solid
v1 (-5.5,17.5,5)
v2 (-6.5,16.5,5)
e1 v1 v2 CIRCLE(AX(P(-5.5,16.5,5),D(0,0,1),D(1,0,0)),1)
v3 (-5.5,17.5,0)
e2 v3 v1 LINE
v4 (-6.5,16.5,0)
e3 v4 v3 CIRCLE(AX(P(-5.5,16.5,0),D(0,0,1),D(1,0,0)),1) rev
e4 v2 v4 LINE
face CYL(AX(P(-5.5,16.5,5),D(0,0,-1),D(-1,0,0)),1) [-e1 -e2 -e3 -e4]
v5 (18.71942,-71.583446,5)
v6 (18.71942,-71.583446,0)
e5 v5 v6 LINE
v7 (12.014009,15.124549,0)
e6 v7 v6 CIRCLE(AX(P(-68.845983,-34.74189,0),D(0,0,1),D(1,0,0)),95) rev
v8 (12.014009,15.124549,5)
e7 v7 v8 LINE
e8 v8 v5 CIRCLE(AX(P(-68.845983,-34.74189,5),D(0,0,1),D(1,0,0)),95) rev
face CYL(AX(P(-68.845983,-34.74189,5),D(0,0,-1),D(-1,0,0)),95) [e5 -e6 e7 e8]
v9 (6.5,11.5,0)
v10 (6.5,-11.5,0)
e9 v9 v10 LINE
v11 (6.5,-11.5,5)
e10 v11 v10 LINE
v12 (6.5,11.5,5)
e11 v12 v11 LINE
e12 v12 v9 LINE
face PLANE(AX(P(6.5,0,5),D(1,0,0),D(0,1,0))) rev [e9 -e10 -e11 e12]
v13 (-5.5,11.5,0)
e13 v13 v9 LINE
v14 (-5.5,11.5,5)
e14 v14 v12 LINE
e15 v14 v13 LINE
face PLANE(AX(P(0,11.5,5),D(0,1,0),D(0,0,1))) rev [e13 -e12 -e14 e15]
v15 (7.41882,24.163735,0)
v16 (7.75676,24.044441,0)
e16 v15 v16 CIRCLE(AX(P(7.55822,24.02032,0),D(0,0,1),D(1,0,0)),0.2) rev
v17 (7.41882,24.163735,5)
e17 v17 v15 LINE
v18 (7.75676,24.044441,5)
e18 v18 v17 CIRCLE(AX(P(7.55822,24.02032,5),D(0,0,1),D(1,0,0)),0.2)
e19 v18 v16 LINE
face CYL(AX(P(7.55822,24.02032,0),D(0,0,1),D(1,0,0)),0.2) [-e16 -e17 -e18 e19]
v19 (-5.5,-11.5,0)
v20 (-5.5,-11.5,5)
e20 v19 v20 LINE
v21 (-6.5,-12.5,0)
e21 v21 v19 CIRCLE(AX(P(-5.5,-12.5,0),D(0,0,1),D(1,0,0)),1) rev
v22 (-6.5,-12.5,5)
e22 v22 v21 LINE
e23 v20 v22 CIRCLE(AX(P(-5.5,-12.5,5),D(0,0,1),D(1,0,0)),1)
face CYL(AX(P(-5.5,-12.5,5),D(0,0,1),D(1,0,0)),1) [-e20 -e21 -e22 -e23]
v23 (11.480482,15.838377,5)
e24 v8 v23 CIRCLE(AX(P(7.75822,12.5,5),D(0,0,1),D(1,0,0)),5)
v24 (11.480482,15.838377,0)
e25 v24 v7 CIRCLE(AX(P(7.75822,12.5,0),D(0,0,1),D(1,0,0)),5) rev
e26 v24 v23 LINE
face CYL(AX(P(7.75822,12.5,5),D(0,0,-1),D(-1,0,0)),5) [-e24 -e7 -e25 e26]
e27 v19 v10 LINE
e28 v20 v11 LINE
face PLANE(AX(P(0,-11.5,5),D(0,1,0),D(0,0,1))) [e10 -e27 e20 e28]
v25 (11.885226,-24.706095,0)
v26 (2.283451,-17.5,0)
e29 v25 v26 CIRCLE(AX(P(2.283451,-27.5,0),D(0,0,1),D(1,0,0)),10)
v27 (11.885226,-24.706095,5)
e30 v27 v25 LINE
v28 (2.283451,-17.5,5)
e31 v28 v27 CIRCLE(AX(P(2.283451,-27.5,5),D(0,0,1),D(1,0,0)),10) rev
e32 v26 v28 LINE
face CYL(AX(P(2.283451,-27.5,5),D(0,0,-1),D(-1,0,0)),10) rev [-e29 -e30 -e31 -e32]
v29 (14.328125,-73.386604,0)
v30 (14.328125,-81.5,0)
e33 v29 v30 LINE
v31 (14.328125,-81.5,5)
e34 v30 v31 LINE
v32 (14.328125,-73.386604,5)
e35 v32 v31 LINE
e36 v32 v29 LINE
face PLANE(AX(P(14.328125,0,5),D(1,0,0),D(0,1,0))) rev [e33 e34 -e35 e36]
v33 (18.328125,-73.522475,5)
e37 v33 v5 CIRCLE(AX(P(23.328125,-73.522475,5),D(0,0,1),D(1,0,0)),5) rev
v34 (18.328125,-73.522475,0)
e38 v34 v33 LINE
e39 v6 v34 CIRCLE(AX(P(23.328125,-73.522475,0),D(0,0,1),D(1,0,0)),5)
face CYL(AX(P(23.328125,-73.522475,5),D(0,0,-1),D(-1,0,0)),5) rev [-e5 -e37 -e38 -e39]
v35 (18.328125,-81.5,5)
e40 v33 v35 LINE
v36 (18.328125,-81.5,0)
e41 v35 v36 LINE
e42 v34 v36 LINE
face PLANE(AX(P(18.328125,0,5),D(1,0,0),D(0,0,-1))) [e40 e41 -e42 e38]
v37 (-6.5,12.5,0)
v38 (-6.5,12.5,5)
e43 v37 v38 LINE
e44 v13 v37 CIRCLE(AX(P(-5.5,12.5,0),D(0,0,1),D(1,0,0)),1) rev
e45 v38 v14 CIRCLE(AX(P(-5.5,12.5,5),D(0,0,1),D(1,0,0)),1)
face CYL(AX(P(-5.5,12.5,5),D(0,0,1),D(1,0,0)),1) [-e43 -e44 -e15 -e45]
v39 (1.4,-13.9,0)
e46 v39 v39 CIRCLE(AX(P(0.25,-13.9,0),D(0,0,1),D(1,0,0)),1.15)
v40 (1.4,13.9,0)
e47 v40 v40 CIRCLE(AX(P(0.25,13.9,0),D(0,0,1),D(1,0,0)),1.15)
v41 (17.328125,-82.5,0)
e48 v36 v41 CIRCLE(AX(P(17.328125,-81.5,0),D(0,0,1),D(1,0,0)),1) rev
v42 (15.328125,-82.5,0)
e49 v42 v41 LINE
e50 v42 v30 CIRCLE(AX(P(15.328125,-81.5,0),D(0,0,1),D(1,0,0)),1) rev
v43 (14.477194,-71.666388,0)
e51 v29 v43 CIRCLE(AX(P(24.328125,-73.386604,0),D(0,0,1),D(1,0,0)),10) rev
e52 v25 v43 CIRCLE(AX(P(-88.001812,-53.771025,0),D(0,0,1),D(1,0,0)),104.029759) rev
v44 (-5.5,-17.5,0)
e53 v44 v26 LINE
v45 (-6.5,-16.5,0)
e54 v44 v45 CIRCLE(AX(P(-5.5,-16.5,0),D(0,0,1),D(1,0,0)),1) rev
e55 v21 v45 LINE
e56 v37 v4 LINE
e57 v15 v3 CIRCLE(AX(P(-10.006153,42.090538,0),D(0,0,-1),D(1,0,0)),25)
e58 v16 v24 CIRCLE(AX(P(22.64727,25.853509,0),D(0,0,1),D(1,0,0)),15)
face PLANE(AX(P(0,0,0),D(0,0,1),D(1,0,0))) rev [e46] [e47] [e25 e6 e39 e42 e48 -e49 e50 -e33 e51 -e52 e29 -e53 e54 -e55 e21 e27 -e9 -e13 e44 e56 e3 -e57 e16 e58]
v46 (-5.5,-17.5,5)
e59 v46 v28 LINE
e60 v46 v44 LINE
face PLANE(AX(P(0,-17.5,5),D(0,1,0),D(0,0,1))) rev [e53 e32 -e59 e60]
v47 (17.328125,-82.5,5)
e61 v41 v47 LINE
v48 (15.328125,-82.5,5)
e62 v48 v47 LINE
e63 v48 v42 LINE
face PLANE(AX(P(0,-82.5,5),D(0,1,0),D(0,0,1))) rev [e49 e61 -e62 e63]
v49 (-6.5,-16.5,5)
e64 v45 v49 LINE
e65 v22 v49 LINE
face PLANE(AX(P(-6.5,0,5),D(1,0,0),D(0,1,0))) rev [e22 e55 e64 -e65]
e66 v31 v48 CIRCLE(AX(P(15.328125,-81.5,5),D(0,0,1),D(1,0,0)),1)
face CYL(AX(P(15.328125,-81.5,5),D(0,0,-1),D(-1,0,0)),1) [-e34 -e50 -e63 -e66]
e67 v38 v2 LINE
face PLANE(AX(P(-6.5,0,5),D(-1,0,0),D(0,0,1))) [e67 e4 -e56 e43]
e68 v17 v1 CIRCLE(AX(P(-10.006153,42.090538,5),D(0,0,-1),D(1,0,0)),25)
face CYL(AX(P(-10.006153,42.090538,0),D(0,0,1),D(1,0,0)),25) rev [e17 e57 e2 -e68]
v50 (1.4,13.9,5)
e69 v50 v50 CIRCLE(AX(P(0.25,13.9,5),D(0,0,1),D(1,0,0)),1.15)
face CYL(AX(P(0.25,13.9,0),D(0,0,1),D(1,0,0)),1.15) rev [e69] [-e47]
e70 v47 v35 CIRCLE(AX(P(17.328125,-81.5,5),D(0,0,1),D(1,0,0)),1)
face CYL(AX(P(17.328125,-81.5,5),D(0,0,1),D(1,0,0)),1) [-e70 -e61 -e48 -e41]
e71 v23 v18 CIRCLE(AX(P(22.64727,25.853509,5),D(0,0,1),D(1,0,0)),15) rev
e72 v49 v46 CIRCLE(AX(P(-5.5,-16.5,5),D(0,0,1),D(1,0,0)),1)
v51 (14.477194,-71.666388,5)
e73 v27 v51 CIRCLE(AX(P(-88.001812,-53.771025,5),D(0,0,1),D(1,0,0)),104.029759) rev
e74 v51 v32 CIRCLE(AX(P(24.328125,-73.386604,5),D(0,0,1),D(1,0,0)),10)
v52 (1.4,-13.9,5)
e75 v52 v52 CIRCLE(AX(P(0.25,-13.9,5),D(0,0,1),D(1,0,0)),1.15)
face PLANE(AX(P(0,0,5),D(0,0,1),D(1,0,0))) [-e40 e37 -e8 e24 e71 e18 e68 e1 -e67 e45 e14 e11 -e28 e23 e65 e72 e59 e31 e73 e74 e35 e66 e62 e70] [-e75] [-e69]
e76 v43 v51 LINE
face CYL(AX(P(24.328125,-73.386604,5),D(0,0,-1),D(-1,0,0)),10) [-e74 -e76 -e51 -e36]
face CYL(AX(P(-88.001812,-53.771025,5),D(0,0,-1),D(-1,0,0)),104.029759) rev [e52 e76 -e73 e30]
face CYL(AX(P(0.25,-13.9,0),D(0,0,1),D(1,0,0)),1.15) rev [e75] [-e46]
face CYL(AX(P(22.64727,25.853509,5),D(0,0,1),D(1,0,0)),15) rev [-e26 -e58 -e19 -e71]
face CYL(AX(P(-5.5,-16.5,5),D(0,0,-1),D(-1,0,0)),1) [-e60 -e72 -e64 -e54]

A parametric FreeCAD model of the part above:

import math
import FreeCAD as App
import Part
import Sketcher

V = App.Vector


def edges_at(feature, points):
    """Names of the edges that pass closest to the given points."""
    edges = feature.Shape.Edges
    near = lambda p: min(range(len(edges)), key=lambda i: edges[i].distToShape(Part.Vertex(*p))[0])
    return sorted({f"Edge{near(p) + 1}" for p in points})

doc = App.newDocument("Part")
body = doc.addObject("PartDesign::Body", "Body")

sketch1 = doc.addObject("Sketcher::SketchObject", "Sketch")
body.addObject(sketch1)
sketch1.AttachmentSupport = (doc.XY_Plane, [""])
sketch1.MapMode = "FlatFace"
sketch1.addGeometry([
    Part.LineSegment(V(-6.5, 17.5, 0), V(-6.5, 11.5, 0)),
    Part.LineSegment(V(-6.5, 11.5, 0), V(6.5, 11.5, 0)),
    Part.LineSegment(V(6.5, 11.5, 0), V(6.5, -11.5, 0)),
    Part.LineSegment(V(6.5, -11.5, 0), V(-6.5, -11.5, 0)),
    Part.LineSegment(V(-6.5, -11.5, 0), V(-6.5, -17.5, 0)),
    Part.LineSegment(V(-6.5, -17.5, 0), V(9.5, -17.5, 0)),
    Part.ArcOfCircle(Part.Circle(V(-88, -53.8, 0), V(0, 0, 1), 104), math.radians(-10), math.radians(20)),
    Part.LineSegment(V(14.3, -72.5, 0), V(14.3, -82.5, 0)),
    Part.LineSegment(V(14.3, -82.5, 0), V(18.3, -82.5, 0)),
    Part.LineSegment(V(18.3, -82.5, 0), V(18.3, -72.5, 0)),
    Part.ArcOfCircle(Part.Circle(V(-68.8, -34.7, 0), V(0, 0, 1), 95), math.radians(-23), math.radians(33)),
    Part.LineSegment(V(10.5, 17.5, 0), V(-6.5, 17.5, 0)),
], False)
sketch1.addConstraint([
    Sketcher.Constraint("Coincident", 0, 2, 1, 1),
    Sketcher.Constraint("Coincident", 1, 2, 2, 1),
    Sketcher.Constraint("Coincident", 2, 2, 3, 1),
    Sketcher.Constraint("Coincident", 3, 2, 4, 1),
    Sketcher.Constraint("Coincident", 4, 2, 5, 1),
    Sketcher.Constraint("Coincident", 5, 2, 6, 2),
    Sketcher.Constraint("Coincident", 6, 1, 7, 1),
    Sketcher.Constraint("Coincident", 7, 2, 8, 1),
    Sketcher.Constraint("Coincident", 8, 2, 9, 1),
    Sketcher.Constraint("Coincident", 9, 2, 10, 1),
    Sketcher.Constraint("Coincident", 10, 2, 11, 1),
    Sketcher.Constraint("Coincident", 11, 2, 0, 1),
    Sketcher.Constraint("Vertical", 0),
    Sketcher.Constraint("Horizontal", 1),
    Sketcher.Constraint("Vertical", 2),
    Sketcher.Constraint("Horizontal", 3),
    Sketcher.Constraint("Vertical", 4),
    Sketcher.Constraint("Horizontal", 5),
    Sketcher.Constraint("Vertical", 7),
    Sketcher.Constraint("Horizontal", 8),
    Sketcher.Constraint("Vertical", 9),
    Sketcher.Constraint("Horizontal", 11),
    Sketcher.Constraint("Symmetric", 0, 2, 2, 2, -1, 1),
    Sketcher.Constraint("Symmetric", 4, 2, 11, 2, -1),
    Sketcher.Constraint("Horizontal", 6, 1, 9, 2),
    Sketcher.Constraint("Radius", 10, 95.0),
    Sketcher.Constraint("DistanceX", 1, 1, 1, 2, 13.0),
    Sketcher.Constraint("DistanceX", 5, 1, 5, 2, 16.0),
    Sketcher.Constraint("DistanceX", 8, 1, 8, 2, 4.0),
    Sketcher.Constraint("DistanceX", 11, 2, 11, 1, 17.0),
    Sketcher.Constraint("DistanceY", 0, 2, 0, 1, 6.0),
    Sketcher.Constraint("DistanceY", 2, 2, 2, 1, 23.0),
    Sketcher.Constraint("DistanceY", 7, 2, 7, 1, 10.0),
    Sketcher.Constraint("DistanceY", 6, 1, 5, 2, 55.0),
    Sketcher.Constraint("Radius", 6, 104.029759),
    Sketcher.Constraint("DistanceY", 10, 3, -1, 1, 34.74189),
])
pad1 = doc.addObject("PartDesign::Pad", "Pad")
body.addObject(pad1)
pad1.Profile = sketch1
pad1.Length = 5

sketch2 = doc.addObject("Sketcher::SketchObject", "Sketch001")
body.addObject(sketch2)
sketch2.AttachmentSupport = (doc.XY_Plane, [""])
sketch2.MapMode = "FlatFace"
sketch2.AttachmentOffset = App.Placement(V(0, 0, 5), App.Rotation())
sketch2.addGeometry([
    Part.Circle(V(0.2, 13.9, 0), V(0, 0, 1), 1.1),
    Part.Circle(V(0.2, -13.9, 0), V(0, 0, 1), 1.1),
], False)
sketch2.addConstraint([
    Sketcher.Constraint("Equal", 0, 1),
    Sketcher.Constraint("Symmetric", 0, 3, 1, 3, -1),
    Sketcher.Constraint("Diameter", 0, 2.3),
    Sketcher.Constraint("DistanceY", -1, 1, 0, 3, 13.9),
    Sketcher.Constraint("DistanceX", -1, 1, 0, 3, 0.25),
])
pocket1 = doc.addObject("PartDesign::Pocket", "Pocket")
body.addObject(pocket1)
pocket1.Profile = sketch2
pocket1.Type = "ThroughAll"
doc.recompute()

fillet = doc.addObject("PartDesign::Fillet", "Fillet")
body.addObject(fillet)
fillet.Base = (pocket1, edges_at(pocket1, [(10.5, 17.5, 2.5)]))
fillet.Radius = 5
doc.recompute()

fillet2 = doc.addObject("PartDesign::Fillet", "Fillet001")
body.addObject(fillet2)
fillet2.Base = (fillet, edges_at(fillet, [
    (-6.5, -17.5, 2.5),
    (-6.5, -11.5, 2.5),
    (-6.5, 11.5, 2.5),
    (-6.5, 17.5, 2.5),
]))
fillet2.Radius = 1
doc.recompute()

fillet3 = doc.addObject("PartDesign::Fillet", "Fillet002")
body.addObject(fillet3)
fillet3.Base = (fillet2, edges_at(fillet2, [(18.328, -72.5, 2.5)]))
fillet3.Radius = 5
doc.recompute()

fillet4 = doc.addObject("PartDesign::Fillet", "Fillet003")
body.addObject(fillet4)
fillet4.Base = (fillet3, edges_at(fillet3, [(18.328, -82.5, 2.5), (14.328, -82.5, 2.5)]))
fillet4.Radius = 1
doc.recompute()

fillet5 = doc.addObject("PartDesign::Fillet", "Fillet004")
body.addObject(fillet5)
fillet5.Base = (fillet4, edges_at(fillet4, [(14.328, -72.5, 2.5)]))
fillet5.Radius = 10
doc.recompute()

fillet6 = doc.addObject("PartDesign::Fillet", "Fillet005")
body.addObject(fillet6)
fillet6.Base = (fillet5, edges_at(fillet5, [(9.5, -17.5, 2.5)]))
fillet6.Radius = 10

sketch3 = doc.addObject("Sketcher::SketchObject", "Sketch002")
body.addObject(sketch3)
sketch3.AttachmentSupport = (doc.XY_Plane, [""])
sketch3.MapMode = "FlatFace"
sketch3.AttachmentOffset = App.Placement(V(0, 0, 5), App.Rotation())
sketch3.addGeometry([
    Part.LineSegment(V(-6, 18, 0), V(8, 18, 0)),
    Part.LineSegment(V(8, 18, 0), V(8, 24, 0)),
    Part.ArcOfCircle(Part.Circle(V(-10, 42, 0), V(0, 0, 1), 25), math.radians(-80), math.radians(-45)),
], False)
sketch3.addConstraint([
    Sketcher.Constraint("Coincident", 0, 2, 1, 1),
    Sketcher.Constraint("Coincident", 1, 2, 2, 2),
    Sketcher.Constraint("Coincident", 2, 1, 0, 1),
    Sketcher.Constraint("Horizontal", 0),
    Sketcher.Constraint("Vertical", 1),
    Sketcher.Constraint("Radius", 2, 25.0),
    Sketcher.Constraint("DistanceY", 1, 1, 1, 2, 7.0),
    Sketcher.Constraint("DistanceY", -1, 1, 0, 2, 17.5),
    Sketcher.Constraint("DistanceX", 2, 1, -1, 1, 5.5),
    Sketcher.Constraint("DistanceX", 0, 1, 0, 2, 13.25822),
])
pad2 = doc.addObject("PartDesign::Pad", "Pad001")
body.addObject(pad2)
pad2.Profile = sketch3
pad2.Length = 5
pad2.Reversed = True
doc.recompute()

fillet7 = doc.addObject("PartDesign::Fillet", "Fillet006")
body.addObject(fillet7)
fillet7.Base = (pad2, edges_at(pad2, [(7.758, 24.5, 2.5)]))
fillet7.Radius = 0.2
doc.recompute()

fillet8 = doc.addObject("PartDesign::Fillet", "Fillet007")
body.addObject(fillet8)
fillet8.Base = (fillet7, edges_at(fillet7, [(7.758, 17.5, 2.5)]))
fillet8.Radius = 15

doc.recompute()
